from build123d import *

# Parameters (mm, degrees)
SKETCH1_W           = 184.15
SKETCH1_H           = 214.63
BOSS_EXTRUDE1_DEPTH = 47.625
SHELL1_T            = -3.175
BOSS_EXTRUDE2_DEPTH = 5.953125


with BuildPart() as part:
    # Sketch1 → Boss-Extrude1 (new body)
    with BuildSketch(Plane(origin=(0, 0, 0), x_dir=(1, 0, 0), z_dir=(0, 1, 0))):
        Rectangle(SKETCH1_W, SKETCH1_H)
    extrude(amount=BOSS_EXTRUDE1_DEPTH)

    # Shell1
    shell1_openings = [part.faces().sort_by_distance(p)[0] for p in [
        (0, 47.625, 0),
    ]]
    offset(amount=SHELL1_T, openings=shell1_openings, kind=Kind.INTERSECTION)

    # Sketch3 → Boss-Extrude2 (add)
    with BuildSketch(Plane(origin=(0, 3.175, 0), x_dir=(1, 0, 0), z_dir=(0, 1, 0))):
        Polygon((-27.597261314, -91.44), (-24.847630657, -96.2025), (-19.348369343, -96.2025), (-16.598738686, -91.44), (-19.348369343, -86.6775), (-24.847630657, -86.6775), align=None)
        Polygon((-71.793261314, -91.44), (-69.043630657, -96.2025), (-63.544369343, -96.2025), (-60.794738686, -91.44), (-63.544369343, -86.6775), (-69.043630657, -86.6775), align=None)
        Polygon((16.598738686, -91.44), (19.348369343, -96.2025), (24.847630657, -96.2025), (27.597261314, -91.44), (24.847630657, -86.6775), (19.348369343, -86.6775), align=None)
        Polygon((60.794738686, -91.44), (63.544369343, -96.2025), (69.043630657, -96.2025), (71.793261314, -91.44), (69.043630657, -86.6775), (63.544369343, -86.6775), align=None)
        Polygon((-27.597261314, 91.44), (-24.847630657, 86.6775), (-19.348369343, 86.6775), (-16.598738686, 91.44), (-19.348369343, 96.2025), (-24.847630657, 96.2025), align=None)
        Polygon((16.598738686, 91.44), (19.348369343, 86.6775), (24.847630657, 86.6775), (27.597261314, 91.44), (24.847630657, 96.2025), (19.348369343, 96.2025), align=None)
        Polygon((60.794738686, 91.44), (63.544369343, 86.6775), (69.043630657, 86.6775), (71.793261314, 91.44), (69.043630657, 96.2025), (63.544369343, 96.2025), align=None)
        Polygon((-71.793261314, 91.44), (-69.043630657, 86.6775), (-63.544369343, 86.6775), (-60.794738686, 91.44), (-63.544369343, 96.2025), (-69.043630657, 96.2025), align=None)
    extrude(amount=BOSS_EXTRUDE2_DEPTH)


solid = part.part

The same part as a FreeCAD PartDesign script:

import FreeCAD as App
import Part
import Sketcher

V = App.Vector
Q = App.Units.Quantity


def faces_at(feature, points):
    """Names of the faces that lie closest to the given points."""
    faces = feature.Shape.Faces
    near = lambda p: min(range(len(faces)), key=lambda i: faces[i].distToShape(Part.Vertex(*p))[0])
    return sorted({f"Face{near(p) + 1}" for p in points})

doc = App.newDocument("Part")
body = doc.addObject("PartDesign::Body", "Body")

# Sketch on XZ plane
sketch1 = body.newObject("Sketcher::SketchObject", "Sketch")
sketch1.AttachmentSupport = (doc.getObject("XZ_Plane"), [""])
sketch1.MapMode = "FlatFace"
sketch1.addGeometry(Part.LineSegment(V(-92, -107, 0), V(-92, 107, 0)), False)
sketch1.addGeometry(Part.LineSegment(V(-92, 107, 0), V(92, 107, 0)), False)
sketch1.addGeometry(Part.LineSegment(V(92, 107, 0), V(92, -107, 0)), False)
sketch1.addGeometry(Part.LineSegment(V(92, -107, 0), V(-92, -107, 0)), False)
sketch1.addConstraint(Sketcher.Constraint("Coincident", 0, 2, 1, 1))
sketch1.addConstraint(Sketcher.Constraint("Coincident", 1, 2, 2, 1))
sketch1.addConstraint(Sketcher.Constraint("Coincident", 2, 2, 3, 1))
sketch1.addConstraint(Sketcher.Constraint("Coincident", 3, 2, 0, 1))
sketch1.addConstraint(Sketcher.Constraint("Vertical", 0))
sketch1.addConstraint(Sketcher.Constraint("Horizontal", 1))
sketch1.addConstraint(Sketcher.Constraint("Vertical", 2))
sketch1.addConstraint(Sketcher.Constraint("Horizontal", 3))
sketch1.addConstraint(Sketcher.Constraint("Symmetric", 0, 2, 2, 2, -1, 1))
sketch1.addConstraint(Sketcher.Constraint("DistanceX", 1, 1, 1, 2, Q("7.25 in")))
sketch1.addConstraint(Sketcher.Constraint("DistanceY", 0, 1, 0, 2, Q("8.45 in")))
pad1 = body.newObject("PartDesign::Pad", "Pad")
pad1.Profile = sketch1
pad1.Length = Q("1.875 in")
pad1.Reversed = True
doc.recompute()

thickness = body.newObject("PartDesign::Thickness", "Thickness")
thickness.Base = (pad1, faces_at(pad1, [(0, 47.625, 0)]))
thickness.Value = Q("0.125 in")
thickness.Reversed = True
thickness.Join = "Intersection"

# Sketch on XZ plane
sketch2 = body.newObject("Sketcher::SketchObject", "Sketch001")
sketch2.AttachmentSupport = (doc.getObject("XZ_Plane"), [""])
sketch2.MapMode = "FlatFace"
sketch2.AttachmentOffset = App.Placement(V(0, 0, -0.125 * 25.4), App.Rotation())
sketch2.addGeometry(Part.LineSegment(V(-28, 91, 0), V(-25, 96, 0)), False)
sketch2.addGeometry(Part.LineSegment(V(-25, 96, 0), V(-19, 96, 0)), False)
sketch2.addGeometry(Part.LineSegment(V(-19, 96, 0), V(-17, 91, 0)), False)
sketch2.addGeometry(Part.LineSegment(V(-17, 91, 0), V(-19, 87, 0)), False)
sketch2.addGeometry(Part.LineSegment(V(-19, 87, 0), V(-25, 87, 0)), False)
sketch2.addGeometry(Part.LineSegment(V(-25, 87, 0), V(-28, 91, 0)), False)
sketch2.addGeometry(Part.LineSegment(V(-72, 91, 0), V(-69, 96, 0)), False)
sketch2.addGeometry(Part.LineSegment(V(-69, 96, 0), V(-64, 96, 0)), False)
sketch2.addGeometry(Part.LineSegment(V(-64, 96, 0), V(-61, 91, 0)), False)
sketch2.addGeometry(Part.LineSegment(V(-61, 91, 0), V(-64, 87, 0)), False)
sketch2.addGeometry(Part.LineSegment(V(-64, 87, 0), V(-69, 87, 0)), False)
sketch2.addGeometry(Part.LineSegment(V(-69, 87, 0), V(-72, 91, 0)), False)
sketch2.addGeometry(Part.LineSegment(V(17, 91, 0), V(19, 96, 0)), False)
sketch2.addGeometry(Part.LineSegment(V(19, 96, 0), V(25, 96, 0)), False)
sketch2.addGeometry(Part.LineSegment(V(25, 96, 0), V(28, 91, 0)), False)
sketch2.addGeometry(Part.LineSegment(V(28, 91, 0), V(25, 87, 0)), False)
sketch2.addGeometry(Part.LineSegment(V(25, 87, 0), V(19, 87, 0)), False)
sketch2.addGeometry(Part.LineSegment(V(19, 87, 0), V(17, 91, 0)), False)
sketch2.addGeometry(Part.LineSegment(V(61, 91, 0), V(64, 96, 0)), False)
sketch2.addGeometry(Part.LineSegment(V(64, 96, 0), V(69, 96, 0)), False)
sketch2.addGeometry(Part.LineSegment(V(69, 96, 0), V(72, 91, 0)), False)
sketch2.addGeometry(Part.LineSegment(V(72, 91, 0), V(69, 87, 0)), False)
sketch2.addGeometry(Part.LineSegment(V(69, 87, 0), V(64, 87, 0)), False)
sketch2.addGeometry(Part.LineSegment(V(64, 87, 0), V(61, 91, 0)), False)
sketch2.addGeometry(Part.LineSegment(V(-28, -91, 0), V(-25, -87, 0)), False)
sketch2.addGeometry(Part.LineSegment(V(-25, -87, 0), V(-19, -87, 0)), False)
sketch2.addGeometry(Part.LineSegment(V(-19, -87, 0), V(-17, -91, 0)), False)
sketch2.addGeometry(Part.LineSegment(V(-17, -91, 0), V(-19, -96, 0)), False)
sketch2.addGeometry(Part.LineSegment(V(-19, -96, 0), V(-25, -96, 0)), False)
sketch2.addGeometry(Part.LineSegment(V(-25, -96, 0), V(-28, -91, 0)), False)
sketch2.addGeometry(Part.LineSegment(V(17, -91, 0), V(19, -87, 0)), False)
sketch2.addGeometry(Part.LineSegment(V(19, -87, 0), V(25, -87, 0)), False)
sketch2.addGeometry(Part.LineSegment(V(25, -87, 0), V(28, -91, 0)), False)
sketch2.addGeometry(Part.LineSegment(V(28, -91, 0), V(25, -96, 0)), False)
sketch2.addGeometry(Part.LineSegment(V(25, -96, 0), V(19, -96, 0)), False)
sketch2.addGeometry(Part.LineSegment(V(19, -96, 0), V(17, -91, 0)), False)
sketch2.addGeometry(Part.LineSegment(V(61, -91, 0), V(64, -87, 0)), False)
sketch2.addGeometry(Part.LineSegment(V(64, -87, 0), V(69, -87, 0)), False)
sketch2.addGeometry(Part.LineSegment(V(69, -87, 0), V(72, -91, 0)), False)
sketch2.addGeometry(Part.LineSegment(V(72, -91, 0), V(69, -96, 0)), False)
sketch2.addGeometry(Part.LineSegment(V(69, -96, 0), V(64, -96, 0)), False)
sketch2.addGeometry(Part.LineSegment(V(64, -96, 0), V(61, -91, 0)), False)
sketch2.addGeometry(Part.LineSegment(V(-72, -91, 0), V(-69, -87, 0)), False)
sketch2.addGeometry(Part.LineSegment(V(-69, -87, 0), V(-64, -87, 0)), False)
sketch2.addGeometry(Part.LineSegment(V(-64, -87, 0), V(-61, -91, 0)), False)
sketch2.addGeometry(Part.LineSegment(V(-61, -91, 0), V(-64, -96, 0)), False)
sketch2.addGeometry(Part.LineSegment(V(-64, -96, 0), V(-69, -96, 0)), False)
sketch2.addGeometry(Part.LineSegment(V(-69, -96, 0), V(-72, -91, 0)), False)
sketch2.addConstraint(Sketcher.Constraint("Coincident", 0, 2, 1, 1))
sketch2.addConstraint(Sketcher.Constraint("Coincident", 1, 2, 2, 1))
sketch2.addConstraint(Sketcher.Constraint("Coincident", 2, 2, 3, 1))
sketch2.addConstraint(Sketcher.Constraint("Coincident", 3, 2, 4, 1))
sketch2.addConstraint(Sketcher.Constraint("Coincident", 4, 2, 5, 1))
sketch2.addConstraint(Sketcher.Constraint("Coincident", 5, 2, 0, 1))
sketch2.addConstraint(Sketcher.Constraint("Coincident", 6, 2, 7, 1))
sketch2.addConstraint(Sketcher.Constraint("Coincident", 7, 2, 8, 1))
sketch2.addConstraint(Sketcher.Constraint("Coincident", 8, 2, 9, 1))
sketch2.addConstraint(Sketcher.Constraint("Coincident", 9, 2, 10, 1))
sketch2.addConstraint(Sketcher.Constraint("Coincident", 10, 2, 11, 1))
sketch2.addConstraint(Sketcher.Constraint("Coincident", 11, 2, 6, 1))
sketch2.addConstraint(Sketcher.Constraint("Coincident", 12, 2, 13, 1))
sketch2.addConstraint(Sketcher.Constraint("Coincident", 13, 2, 14, 1))
sketch2.addConstraint(Sketcher.Constraint("Coincident", 14, 2, 15, 1))
sketch2.addConstraint(Sketcher.Constraint("Coincident", 15, 2, 16, 1))
sketch2.addConstraint(Sketcher.Constraint("Coincident", 16, 2, 17, 1))
sketch2.addConstraint(Sketcher.Constraint("Coincident", 17, 2, 12, 1))
sketch2.addConstraint(Sketcher.Constraint("Coincident", 18, 2, 19, 1))
sketch2.addConstraint(Sketcher.Constraint("Coincident", 19, 2, 20, 1))
sketch2.addConstraint(Sketcher.Constraint("Coincident", 20, 2, 21, 1))
sketch2.addConstraint(Sketcher.Constraint("Coincident", 21, 2, 22, 1))
sketch2.addConstraint(Sketcher.Constraint("Coincident", 22, 2, 23, 1))
sketch2.addConstraint(Sketcher.Constraint("Coincident", 23, 2, 18, 1))
sketch2.addConstraint(Sketcher.Constraint("Coincident", 24, 2, 25, 1))
sketch2.addConstraint(Sketcher.Constraint("Coincident", 25, 2, 26, 1))
sketch2.addConstraint(Sketcher.Constraint("Coincident", 26, 2, 27, 1))
sketch2.addConstraint(Sketcher.Constraint("Coincident", 27, 2, 28, 1))
sketch2.addConstraint(Sketcher.Constraint("Coincident", 28, 2, 29, 1))
sketch2.addConstraint(Sketcher.Constraint("Coincident", 29, 2, 24, 1))
sketch2.addConstraint(Sketcher.Constraint("Coincident", 30, 2, 31, 1))
sketch2.addConstraint(Sketcher.Constraint("Coincident", 31, 2, 32, 1))
sketch2.addConstraint(Sketcher.Constraint("Coincident", 32, 2, 33, 1))
sketch2.addConstraint(Sketcher.Constraint("Coincident", 33, 2, 34, 1))
sketch2.addConstraint(Sketcher.Constraint("Coincident", 34, 2, 35, 1))
sketch2.addConstraint(Sketcher.Constraint("Coincident", 35, 2, 30, 1))
sketch2.addConstraint(Sketcher.Constraint("Coincident", 36, 2, 37, 1))
sketch2.addConstraint(Sketcher.Constraint("Coincident", 37, 2, 38, 1))
sketch2.addConstraint(Sketcher.Constraint("Coincident", 38, 2, 39, 1))
sketch2.addConstraint(Sketcher.Constraint("Coincident", 39, 2, 40, 1))
sketch2.addConstraint(Sketcher.Constraint("Coincident", 40, 2, 41, 1))
sketch2.addConstraint(Sketcher.Constraint("Coincident", 41, 2, 36, 1))
sketch2.addConstraint(Sketcher.Constraint("Coincident", 42, 2, 43, 1))
sketch2.addConstraint(Sketcher.Constraint("Coincident", 43, 2, 44, 1))
sketch2.addConstraint(Sketcher.Constraint("Coincident", 44, 2, 45, 1))
sketch2.addConstraint(Sketcher.Constraint("Coincident", 45, 2, 46, 1))
sketch2.addConstraint(Sketcher.Constraint("Coincident", 46, 2, 47, 1))
sketch2.addConstraint(Sketcher.Constraint("Coincident", 47, 2, 42, 1))
sketch2.addConstraint(Sketcher.Constraint("Horizontal", 1))
sketch2.addConstraint(Sketcher.Constraint("Horizontal", 4))
sketch2.addConstraint(Sketcher.Constraint("Horizontal", 7))
sketch2.addConstraint(Sketcher.Constraint("Horizontal", 10))
sketch2.addConstraint(Sketcher.Constraint("Horizontal", 13))
sketch2.addConstraint(Sketcher.Constraint("Horizontal", 16))
sketch2.addConstraint(Sketcher.Constraint("Horizontal", 19))
sketch2.addConstraint(Sketcher.Constraint("Horizontal", 22))
sketch2.addConstraint(Sketcher.Constraint("Horizontal", 25))
sketch2.addConstraint(Sketcher.Constraint("Horizontal", 28))
sketch2.addConstraint(Sketcher.Constraint("Horizontal", 31))
sketch2.addConstraint(Sketcher.Constraint("Horizontal", 34))
sketch2.addConstraint(Sketcher.Constraint("Horizontal", 37))
sketch2.addConstraint(Sketcher.Constraint("Horizontal", 40))
sketch2.addConstraint(Sketcher.Constraint("Horizontal", 43))
sketch2.addConstraint(Sketcher.Constraint("Horizontal", 46))
sketch2.addConstraint(Sketcher.Constraint("Symmetric", 15, 2, 24, 2, -1, 1))
sketch2.addConstraint(Sketcher.Constraint("Symmetric", 17, 2, 26, 2, -1, 1))
sketch2.addConstraint(Sketcher.Constraint("Symmetric", 12, 2, 27, 2, -1, 1))
sketch2.addConstraint(Sketcher.Constraint("Symmetric", 14, 2, 29, 2, -1, 1))
sketch2.addConstraint(Sketcher.Constraint("Symmetric", 3, 2, 30, 2, -1, 1))
sketch2.addConstraint(Sketcher.Constraint("Symmetric", 5, 2, 32, 2, -1, 1))
sketch2.addConstraint(Sketcher.Constraint("Symmetric", 0, 2, 33, 2, -1, 1))
sketch2.addConstraint(Sketcher.Constraint("Symmetric", 2, 2, 35, 2, -1, 1))
sketch2.addConstraint(Sketcher.Constraint("Symmetric", 9, 2, 36, 2, -1, 1))
sketch2.addConstraint(Sketcher.Constraint("Symmetric", 11, 2, 38, 2, -1, 1))
sketch2.addConstraint(Sketcher.Constraint("Symmetric", 6, 2, 39, 2, -1, 1))
sketch2.addConstraint(Sketcher.Constraint("Symmetric", 8, 2, 41, 2, -1, 1))
sketch2.addConstraint(Sketcher.Constraint("Symmetric", 21, 2, 42, 2, -1, 1))
sketch2.addConstraint(Sketcher.Constraint("Symmetric", 23, 2, 44, 2, -1, 1))
sketch2.addConstraint(Sketcher.Constraint("Symmetric", 18, 2, 45, 2, -1, 1))
sketch2.addConstraint(Sketcher.Constraint("Symmetric", 20, 2, 47, 2, -1, 1))
sketch2.addConstraint(Sketcher.Constraint("Symmetric", 1, 2, 12, 2, -2))
sketch2.addConstraint(Sketcher.Constraint("Symmetric", 5, 2, 14, 2, -2))
sketch2.addConstraint(Sketcher.Constraint("Symmetric", 4, 2, 15, 2, -2))
sketch2.addConstraint(Sketcher.Constraint("Symmetric", 2, 2, 17, 2, -2))
sketch2.addConstraint(Sketcher.Constraint("Symmetric", 7, 2, 18, 2, -2))
sketch2.addConstraint(Sketcher.Constraint("Symmetric", 11, 2, 20, 2, -2))
sketch2.addConstraint(Sketcher.Constraint("Symmetric", 10, 2, 21, 2, -2))
sketch2.addConstraint(Sketcher.Constraint("Symmetric", 8, 2, 23, 2, -2))
sketch2.addConstraint(Sketcher.Constraint("Parallel", 0, 3))
sketch2.addConstraint(Sketcher.Constraint("Parallel", 2, 5))
sketch2.addConstraint(Sketcher.Constraint("Parallel", 3, 6))
sketch2.addConstraint(Sketcher.Constraint("Parallel", 5, 8))
sketch2.addConstraint(Sketcher.Constraint("Parallel", 6, 9))
sketch2.addConstraint(Sketcher.Constraint("Parallel", 8, 11))
sketch2.addConstraint(Sketcher.Constraint("Parallel", 9, 12))
sketch2.addConstraint(Sketcher.Constraint("Parallel", 11, 14))
sketch2.addConstraint(Sketcher.Constraint("Parallel", 14, 17))
sketch2.addConstraint(Sketcher.Constraint("Parallel", 17, 20))
sketch2.addConstraint(Sketcher.Constraint("Parallel", 20, 23))
sketch2.addConstraint(Sketcher.Constraint("Parallel", 23, 26))
sketch2.addConstraint(Sketcher.Constraint("Parallel", 26, 29))
sketch2.addConstraint(Sketcher.Constraint("Parallel", 29, 32))
sketch2.addConstraint(Sketcher.Constraint("Parallel", 32, 35))
sketch2.addConstraint(Sketcher.Constraint("Parallel", 35, 38))
sketch2.addConstraint(Sketcher.Constraint("Parallel", 38, 41))
sketch2.addConstraint(Sketcher.Constraint("Parallel", 41, 44))
sketch2.addConstraint(Sketcher.Constraint("Parallel", 44, 47))
sketch2.addConstraint(Sketcher.Constraint("Horizontal", 2, 2, 5, 2))
sketch2.addConstraint(Sketcher.Constraint("Horizontal", 1, 2, 6, 2))
sketch2.addConstraint(Sketcher.Constraint("Horizontal", 5, 2, 8, 2))
sketch2.addConstraint(Sketcher.Constraint("Horizontal", 4, 2, 9, 2))
sketch2.addConstraint(Sketcher.Constraint("Horizontal", 8, 2, 11, 2))
sketch2.addConstraint(Sketcher.Constraint("Vertical", 1, 2, 3, 2))
sketch2.addConstraint(Sketcher.Constraint("Equal", 4, 7))
sketch2.addConstraint(Sketcher.Constraint("Angle", 0, Q("60 deg")))
sketch2.addConstraint(Sketcher.Constraint("DistanceY", -1, 1, 2, 2, Q("3.6 in")))
sketch2.addConstraint(Sketcher.Constraint("DistanceX", 6, 2, 0, 2, Q("1.74 in")))
sketch2.addConstraint(Sketcher.Constraint("DistanceX", 0, 2, 12, 2, Q("1.74 in")))
sketch2.addConstraint(Sketcher.Constraint("DistanceY", 2, 2, 1, 2, Q("0.1875 in")))
sketch2.addConstraint(Sketcher.Constraint("DistanceX", 1, 1, 1, 2, Q("5.499261 mm")))
pad2 = body.newObject("PartDesign::Pad", "Pad001")
pad2.Profile = sketch2
pad2.Length = Q("0.234375 in")
pad2.Reversed = True

doc.recompute()
